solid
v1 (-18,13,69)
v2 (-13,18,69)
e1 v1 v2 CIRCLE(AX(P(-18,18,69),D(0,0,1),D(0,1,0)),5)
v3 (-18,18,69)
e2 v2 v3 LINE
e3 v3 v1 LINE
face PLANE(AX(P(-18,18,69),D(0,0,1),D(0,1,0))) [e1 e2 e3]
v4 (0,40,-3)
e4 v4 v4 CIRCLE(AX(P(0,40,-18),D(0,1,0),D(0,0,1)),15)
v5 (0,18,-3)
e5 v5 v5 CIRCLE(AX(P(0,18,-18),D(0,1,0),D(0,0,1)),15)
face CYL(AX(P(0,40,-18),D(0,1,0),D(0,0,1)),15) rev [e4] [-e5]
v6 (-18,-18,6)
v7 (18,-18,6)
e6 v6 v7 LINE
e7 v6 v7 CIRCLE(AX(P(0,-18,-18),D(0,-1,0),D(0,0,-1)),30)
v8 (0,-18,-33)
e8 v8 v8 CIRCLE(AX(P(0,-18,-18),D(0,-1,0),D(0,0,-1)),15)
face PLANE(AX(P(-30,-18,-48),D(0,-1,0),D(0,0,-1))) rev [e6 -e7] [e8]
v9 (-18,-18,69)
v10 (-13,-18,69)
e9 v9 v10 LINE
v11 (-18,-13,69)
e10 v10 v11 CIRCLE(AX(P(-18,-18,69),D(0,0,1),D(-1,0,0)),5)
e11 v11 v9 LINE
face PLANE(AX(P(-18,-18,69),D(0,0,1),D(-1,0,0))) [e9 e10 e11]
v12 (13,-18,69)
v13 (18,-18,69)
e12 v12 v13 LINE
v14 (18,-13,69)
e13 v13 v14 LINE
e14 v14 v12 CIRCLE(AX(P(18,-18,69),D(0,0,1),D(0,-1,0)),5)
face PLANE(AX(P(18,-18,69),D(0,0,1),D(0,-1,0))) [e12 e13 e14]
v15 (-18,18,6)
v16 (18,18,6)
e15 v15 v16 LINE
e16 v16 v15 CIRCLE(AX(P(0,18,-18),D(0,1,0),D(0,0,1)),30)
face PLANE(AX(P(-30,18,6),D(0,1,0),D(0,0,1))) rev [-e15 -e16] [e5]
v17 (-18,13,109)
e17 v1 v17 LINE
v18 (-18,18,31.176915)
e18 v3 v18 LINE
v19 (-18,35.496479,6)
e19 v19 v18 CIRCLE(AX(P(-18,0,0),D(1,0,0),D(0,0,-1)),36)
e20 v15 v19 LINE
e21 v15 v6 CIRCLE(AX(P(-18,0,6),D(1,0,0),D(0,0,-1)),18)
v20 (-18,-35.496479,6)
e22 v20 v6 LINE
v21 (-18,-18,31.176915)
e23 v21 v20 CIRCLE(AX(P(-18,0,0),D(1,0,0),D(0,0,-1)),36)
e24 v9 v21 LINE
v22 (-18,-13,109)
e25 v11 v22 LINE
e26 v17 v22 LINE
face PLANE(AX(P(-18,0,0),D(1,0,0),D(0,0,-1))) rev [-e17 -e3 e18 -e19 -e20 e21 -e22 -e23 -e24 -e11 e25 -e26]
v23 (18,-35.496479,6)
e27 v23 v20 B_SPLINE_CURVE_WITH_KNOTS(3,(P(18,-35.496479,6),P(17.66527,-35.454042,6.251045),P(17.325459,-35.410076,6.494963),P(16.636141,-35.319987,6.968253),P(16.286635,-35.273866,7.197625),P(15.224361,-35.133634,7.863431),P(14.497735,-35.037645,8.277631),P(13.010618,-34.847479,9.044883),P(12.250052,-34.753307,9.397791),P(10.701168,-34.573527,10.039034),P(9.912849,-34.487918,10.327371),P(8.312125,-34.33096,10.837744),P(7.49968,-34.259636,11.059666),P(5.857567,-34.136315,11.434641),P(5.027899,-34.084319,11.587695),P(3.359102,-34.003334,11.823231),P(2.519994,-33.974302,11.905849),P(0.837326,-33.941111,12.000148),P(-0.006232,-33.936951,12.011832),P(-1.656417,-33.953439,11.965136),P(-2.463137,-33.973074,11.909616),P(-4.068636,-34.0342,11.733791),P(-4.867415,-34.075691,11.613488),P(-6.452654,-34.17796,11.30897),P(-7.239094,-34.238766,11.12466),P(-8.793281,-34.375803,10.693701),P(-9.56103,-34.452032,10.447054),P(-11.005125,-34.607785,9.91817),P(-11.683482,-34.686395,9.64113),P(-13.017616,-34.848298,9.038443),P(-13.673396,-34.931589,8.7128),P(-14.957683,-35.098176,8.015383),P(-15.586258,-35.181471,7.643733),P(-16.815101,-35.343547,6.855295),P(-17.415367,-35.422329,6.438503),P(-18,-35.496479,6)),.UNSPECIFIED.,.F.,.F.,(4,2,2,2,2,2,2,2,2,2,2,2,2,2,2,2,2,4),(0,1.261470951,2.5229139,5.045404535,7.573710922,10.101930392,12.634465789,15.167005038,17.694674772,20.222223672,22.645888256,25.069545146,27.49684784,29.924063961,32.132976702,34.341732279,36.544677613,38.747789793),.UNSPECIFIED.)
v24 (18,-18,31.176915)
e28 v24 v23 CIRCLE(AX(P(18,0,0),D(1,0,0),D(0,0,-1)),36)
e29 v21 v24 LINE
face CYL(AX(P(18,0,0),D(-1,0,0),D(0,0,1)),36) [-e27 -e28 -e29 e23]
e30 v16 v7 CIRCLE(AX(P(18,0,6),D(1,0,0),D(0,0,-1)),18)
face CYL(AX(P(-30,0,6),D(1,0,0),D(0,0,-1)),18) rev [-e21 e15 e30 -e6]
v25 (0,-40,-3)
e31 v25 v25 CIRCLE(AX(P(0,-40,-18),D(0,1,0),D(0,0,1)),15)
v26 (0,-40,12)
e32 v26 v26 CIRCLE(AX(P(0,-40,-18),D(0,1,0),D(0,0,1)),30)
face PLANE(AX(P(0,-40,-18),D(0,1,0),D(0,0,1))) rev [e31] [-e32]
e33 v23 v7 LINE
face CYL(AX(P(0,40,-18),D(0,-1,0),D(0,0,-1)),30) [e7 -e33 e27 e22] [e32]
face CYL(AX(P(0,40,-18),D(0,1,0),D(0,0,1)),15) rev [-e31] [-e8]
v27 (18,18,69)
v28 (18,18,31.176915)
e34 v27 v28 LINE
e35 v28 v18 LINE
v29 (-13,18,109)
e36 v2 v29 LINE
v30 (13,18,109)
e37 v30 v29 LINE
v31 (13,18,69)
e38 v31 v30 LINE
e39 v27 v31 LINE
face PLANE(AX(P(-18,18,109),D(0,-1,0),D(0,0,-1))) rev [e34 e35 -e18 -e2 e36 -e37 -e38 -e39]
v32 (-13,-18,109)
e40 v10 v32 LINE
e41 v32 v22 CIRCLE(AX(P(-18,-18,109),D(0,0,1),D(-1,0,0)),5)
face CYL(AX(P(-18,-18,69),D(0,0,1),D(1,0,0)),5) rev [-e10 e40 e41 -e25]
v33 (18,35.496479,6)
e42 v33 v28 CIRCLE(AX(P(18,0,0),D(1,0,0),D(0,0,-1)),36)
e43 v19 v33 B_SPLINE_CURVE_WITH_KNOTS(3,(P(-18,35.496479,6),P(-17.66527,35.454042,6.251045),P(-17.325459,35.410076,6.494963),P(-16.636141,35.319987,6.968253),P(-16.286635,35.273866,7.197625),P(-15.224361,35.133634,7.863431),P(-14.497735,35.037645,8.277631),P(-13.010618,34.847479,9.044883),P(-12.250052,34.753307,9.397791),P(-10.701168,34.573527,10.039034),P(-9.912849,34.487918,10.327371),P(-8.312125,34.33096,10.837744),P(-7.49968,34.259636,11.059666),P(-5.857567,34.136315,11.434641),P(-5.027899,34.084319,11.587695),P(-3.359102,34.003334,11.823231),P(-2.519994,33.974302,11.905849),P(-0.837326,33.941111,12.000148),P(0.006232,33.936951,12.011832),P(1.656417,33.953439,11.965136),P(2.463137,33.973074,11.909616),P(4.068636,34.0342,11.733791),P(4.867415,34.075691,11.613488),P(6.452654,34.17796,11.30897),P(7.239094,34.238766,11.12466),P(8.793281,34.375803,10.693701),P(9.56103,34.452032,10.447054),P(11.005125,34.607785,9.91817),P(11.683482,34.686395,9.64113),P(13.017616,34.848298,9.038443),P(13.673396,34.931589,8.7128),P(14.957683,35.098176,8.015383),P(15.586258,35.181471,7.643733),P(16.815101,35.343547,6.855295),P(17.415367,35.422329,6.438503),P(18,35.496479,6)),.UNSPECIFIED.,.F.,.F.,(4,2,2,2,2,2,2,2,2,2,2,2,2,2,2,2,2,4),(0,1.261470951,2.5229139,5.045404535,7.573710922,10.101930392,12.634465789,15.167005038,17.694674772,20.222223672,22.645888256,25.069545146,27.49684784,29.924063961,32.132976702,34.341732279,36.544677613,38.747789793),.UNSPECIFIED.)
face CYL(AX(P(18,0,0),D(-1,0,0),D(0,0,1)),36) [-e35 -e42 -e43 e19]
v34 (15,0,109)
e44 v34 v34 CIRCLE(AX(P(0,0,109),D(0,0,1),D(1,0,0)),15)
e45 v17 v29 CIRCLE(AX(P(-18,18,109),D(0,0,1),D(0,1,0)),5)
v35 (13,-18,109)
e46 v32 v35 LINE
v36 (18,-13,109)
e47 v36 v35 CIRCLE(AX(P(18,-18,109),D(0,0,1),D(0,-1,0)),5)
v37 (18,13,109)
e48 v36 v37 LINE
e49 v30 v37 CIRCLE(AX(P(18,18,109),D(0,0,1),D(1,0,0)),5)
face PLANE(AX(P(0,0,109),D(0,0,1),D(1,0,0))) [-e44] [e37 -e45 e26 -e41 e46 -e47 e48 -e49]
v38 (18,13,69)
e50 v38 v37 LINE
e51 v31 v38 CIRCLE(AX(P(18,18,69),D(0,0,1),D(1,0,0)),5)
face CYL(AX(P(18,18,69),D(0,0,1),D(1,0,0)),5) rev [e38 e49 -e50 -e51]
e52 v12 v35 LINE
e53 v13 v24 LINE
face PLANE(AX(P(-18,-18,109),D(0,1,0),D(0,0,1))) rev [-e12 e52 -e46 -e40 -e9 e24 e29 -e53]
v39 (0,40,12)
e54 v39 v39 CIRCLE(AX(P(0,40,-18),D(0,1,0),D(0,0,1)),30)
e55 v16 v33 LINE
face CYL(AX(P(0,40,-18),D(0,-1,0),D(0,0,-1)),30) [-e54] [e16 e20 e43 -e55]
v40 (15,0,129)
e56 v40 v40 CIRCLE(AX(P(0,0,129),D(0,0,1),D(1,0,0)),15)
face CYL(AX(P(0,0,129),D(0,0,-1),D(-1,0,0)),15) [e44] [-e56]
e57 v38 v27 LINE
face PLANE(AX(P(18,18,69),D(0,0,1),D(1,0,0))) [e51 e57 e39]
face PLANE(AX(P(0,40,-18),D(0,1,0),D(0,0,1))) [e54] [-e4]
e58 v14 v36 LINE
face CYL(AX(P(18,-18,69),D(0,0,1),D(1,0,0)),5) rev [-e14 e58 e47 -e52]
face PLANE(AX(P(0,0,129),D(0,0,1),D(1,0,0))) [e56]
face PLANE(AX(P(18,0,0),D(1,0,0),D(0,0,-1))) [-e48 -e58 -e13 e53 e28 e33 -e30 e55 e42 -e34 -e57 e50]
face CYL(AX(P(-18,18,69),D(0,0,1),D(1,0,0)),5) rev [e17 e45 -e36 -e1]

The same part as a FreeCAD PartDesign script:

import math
import FreeCAD as App
import Part
import Sketcher
from FreeCAD import Vector
Q = App.Units.Quantity

doc = App.newDocument("Part")
body = doc.addObject("PartDesign::Body", "Body")

sketch1 = body.newObject("Sketcher::SketchObject", "Sketch")
sketch1.AttachmentSupport = (doc.getObject("YZ_Plane"), [""])
sketch1.MapMode = "FlatFace"
sketch1.addGeometry(Part.Circle(Vector(0, 0, 0), Vector(0, 0, 1), 36), False)
sketch1.addConstraint(Sketcher.Constraint("Coincident", 0, 3, -1, 1))
sketch1.addConstraint(Sketcher.Constraint("Diameter", 0, Q("72 mm")))
pad1 = body.newObject("PartDesign::Pad", "Pad")
pad1.Profile = sketch1
pad1.Length = 36
pad1.Midplane = True

sketch2 = body.newObject("Sketcher::SketchObject", "Sketch001")
sketch2.AttachmentSupport = (doc.getObject("XY_Plane"), [""])
sketch2.MapMode = "FlatFace"
sketch2.addGeometry(Part.LineSegment(Vector(-18, 18, 0), Vector(-18, -18, 0)), False)
sketch2.addGeometry(Part.LineSegment(Vector(-18, -18, 0), Vector(18, -18, 0)), False)
sketch2.addGeometry(Part.LineSegment(Vector(18, -18, 0), Vector(18, 18, 0)), False)
sketch2.addGeometry(Part.LineSegment(Vector(18, 18, 0), Vector(-18, 18, 0)), False)
sketch2.addConstraint(Sketcher.Constraint("Coincident", 0, 2, 1, 1))
sketch2.addConstraint(Sketcher.Constraint("Coincident", 1, 2, 2, 1))
sketch2.addConstraint(Sketcher.Constraint("Coincident", 2, 2, 3, 1))
sketch2.addConstraint(Sketcher.Constraint("Coincident", 3, 2, 0, 1))
sketch2.addConstraint(Sketcher.Constraint("Vertical", 0))
sketch2.addConstraint(Sketcher.Constraint("Horizontal", 1))
sketch2.addConstraint(Sketcher.Constraint("Vertical", 2))
sketch2.addConstraint(Sketcher.Constraint("Horizontal", 3))
sketch2.addConstraint(Sketcher.Constraint("Symmetric", 0, 2, 2, 2, -1, 1))
sketch2.addConstraint(Sketcher.Constraint("Equal", 3, 0))
sketch2.addConstraint(Sketcher.Constraint("DistanceX", 1, 1, 1, 2, Q("36 mm")))
pad2 = body.newObject("PartDesign::Pad", "Pad001")
pad2.Profile = sketch2
pad2.Length = 109

sketch3 = body.newObject("Sketcher::SketchObject", "Sketch002")
sketch3.AttachmentSupport = (doc.getObject("XY_Plane"), [""])
sketch3.MapMode = "FlatFace"
sketch3.AttachmentOffset = App.Placement(Vector(0, 0, 109), App.Rotation())
sketch3.addGeometry(Part.Circle(Vector(0, 0, 0), Vector(0, 0, 1), 15), False)
sketch3.addConstraint(Sketcher.Constraint("Coincident", 0, 3, -1, 1))
sketch3.addConstraint(Sketcher.Constraint("Diameter", 0, Q("30 mm")))
pad3 = body.newObject("PartDesign::Pad", "Pad002")
pad3.Profile = sketch3
pad3.Length = 20

sketch4 = body.newObject("Sketcher::SketchObject", "Sketch003")
sketch4.AttachmentSupport = (doc.getObject("XY_Plane"), [""])
sketch4.MapMode = "FlatFace"
sketch4.AttachmentOffset = App.Placement(Vector(0, 0, 109), App.Rotation())
sketch4.addGeometry(Part.LineSegment(Vector(18, 18, 0), Vector(13, 18, 0)), False)
sketch4.addGeometry(Part.ArcOfCircle(Part.Circle(Vector(18, 18, 0), Vector(0, 0, 1), 5), math.radians(180), math.radians(270)), False)
sketch4.addGeometry(Part.LineSegment(Vector(18, 13, 0), Vector(18, 18, 0)), False)
sketch4.addConstraint(Sketcher.Constraint("Coincident", 0, 2, 1, 1))
sketch4.addConstraint(Sketcher.Constraint("Coincident", 1, 2, 2, 1))
sketch4.addConstraint(Sketcher.Constraint("Coincident", 2, 2, 0, 1))
sketch4.addConstraint(Sketcher.Constraint("Horizontal", 0))
sketch4.addConstraint(Sketcher.Constraint("Vertical", 2))
sketch4.addConstraint(Sketcher.Constraint("Coincident", 2, 2, 1, 3))
sketch4.addConstraint(Sketcher.Constraint("Radius", 1, Q("5 mm")))
sketch4.addConstraint(Sketcher.Constraint("DistanceX", -1, 1, 1, 3, Q("18 mm")))
sketch4.addConstraint(Sketcher.Constraint("DistanceY", -1, 1, 1, 3, Q("18 mm")))
pocket1 = body.newObject("PartDesign::Pocket", "Pocket")
pocket1.Profile = sketch4
pocket1.Length = 40
doc.recompute()

polarpattern = body.newObject("PartDesign::PolarPattern", "PolarPattern")
polarpattern.Originals = [pocket1]
polarpattern.Axis = (doc.getObject("Z_Axis"), [""])
polarpattern.Angle = 360
polarpattern.Occurrences = 4
body.Tip = polarpattern

sketch5 = body.newObject("Sketcher::SketchObject", "Sketch004")
sketch5.AttachmentSupport = (doc.getObject("XZ_Plane"), [""])
sketch5.MapMode = "FlatFace"
sketch5.addGeometry(Part.Circle(Vector(0, -18, 0), Vector(0, 0, 1), 30), False)
sketch5.addConstraint(Sketcher.Constraint("PointOnObject", 0, 3, -2))
sketch5.addConstraint(Sketcher.Constraint("Diameter", 0, Q("60 mm")))
sketch5.addConstraint(Sketcher.Constraint("DistanceY", 0, 3, -1, 1, Q("18 mm")))
pad4 = body.newObject("PartDesign::Pad", "Pad003")
pad4.Profile = sketch5
pad4.Length = 80
pad4.Midplane = True

sketch6 = body.newObject("Sketcher::SketchObject", "Sketch005")
sketch6.AttachmentSupport = (doc.getObject("YZ_Plane"), [""])
sketch6.MapMode = "FlatFace"
sketch6.addGeometry(Part.LineSegment(Vector(18, -48, 0), Vector(18, 6, 0)), False)
sketch6.addGeometry(Part.ArcOfCircle(Part.Circle(Vector(0, 6, 0), Vector(0, 0, 1), 18), math.radians(0), math.radians(180)), False)
sketch6.addGeometry(Part.LineSegment(Vector(-18, 6, 0), Vector(-18, -48, 0)), False)
sketch6.addGeometry(Part.LineSegment(Vector(-18, -48, 0), Vector(18, -48, 0)), False)
sketch6.addConstraint(Sketcher.Constraint("Tangent", 0, 2, 1, 1))
sketch6.addConstraint(Sketcher.Constraint("Tangent", 1, 2, 2, 1))
sketch6.addConstraint(Sketcher.Constraint("Coincident", 2, 2, 3, 1))
sketch6.addConstraint(Sketcher.Constraint("Coincident", 3, 2, 0, 1))
sketch6.addConstraint(Sketcher.Constraint("Vertical", 0))
sketch6.addConstraint(Sketcher.Constraint("Vertical", 2))
sketch6.addConstraint(Sketcher.Constraint("Horizontal", 3))
sketch6.addConstraint(Sketcher.Constraint("PointOnObject", 1, 3, -2))
sketch6.addConstraint(Sketcher.Constraint("Radius", 1, Q("18 mm")))
sketch6.addConstraint(Sketcher.Constraint("DistanceY", 0, 1, 0, 2, Q("54 mm")))
sketch6.addConstraint(Sketcher.Constraint("DistanceY", -1, 1, 1, 3, Q("6 mm")))
pocket2 = body.newObject("PartDesign::Pocket", "Pocket001")
pocket2.Profile = sketch6
pocket2.Type = "ThroughAll"
pocket2.Midplane = True

sketch7 = body.newObject("Sketcher::SketchObject", "Sketch006")
sketch7.AttachmentSupport = (doc.getObject("XZ_Plane"), [""])
sketch7.MapMode = "FlatFace"
sketch7.AttachmentOffset = App.Placement(Vector(0, 0, -40), App.Rotation())
sketch7.addGeometry(Part.Circle(Vector(0, -18, 0), Vector(0, 0, 1), 15), False)
sketch7.addConstraint(Sketcher.Constraint("PointOnObject", 0, 3, -2))
sketch7.addConstraint(Sketcher.Constraint("Diameter", 0, Q("30 mm")))
sketch7.addConstraint(Sketcher.Constraint("DistanceY", 0, 3, -1, 1, Q("18 mm")))
doc.recompute()
hole = body.newObject("PartDesign::Hole", "Hole")
hole.Profile = sketch7
hole.ThreadType = "None"
hole.Diameter = 30
hole.DepthType = "ThroughAll"
hole.Reversed = True

doc.recompute()
